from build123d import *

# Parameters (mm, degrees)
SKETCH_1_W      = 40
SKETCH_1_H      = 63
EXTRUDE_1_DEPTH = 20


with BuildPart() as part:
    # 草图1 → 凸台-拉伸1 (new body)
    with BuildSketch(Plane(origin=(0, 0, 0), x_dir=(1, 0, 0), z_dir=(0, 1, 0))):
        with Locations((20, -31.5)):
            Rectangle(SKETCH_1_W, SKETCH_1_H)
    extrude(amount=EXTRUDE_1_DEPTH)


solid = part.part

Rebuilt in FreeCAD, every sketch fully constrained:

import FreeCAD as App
import Part
import Sketcher

V = App.Vector
Q = App.Units.Quantity

doc = App.newDocument("Part")
body = doc.addObject("PartDesign::Body", "Body")

# Sketch on XZ plane
sketch1 = doc.addObject("Sketcher::SketchObject", "Sketch")
body.addObject(sketch1)
sketch1.AttachmentSupport = (doc.XZ_Plane, [""])
sketch1.MapMode = "FlatFace"
sketch1.addGeometry([
    Part.LineSegment(V(0, 0, 0), V(0, 63, 0)),
    Part.LineSegment(V(0, 63, 0), V(40, 63, 0)),
    Part.LineSegment(V(40, 63, 0), V(40, 0, 0)),
    Part.LineSegment(V(40, 0, 0), V(0, 0, 0)),
], False)
sketch1.addConstraint([
    Sketcher.Constraint("Coincident", 0, 2, 1, 1),
    Sketcher.Constraint("Coincident", 1, 2, 2, 1),
    Sketcher.Constraint("Coincident", 2, 2, 3, 1),
    Sketcher.Constraint("Coincident", 3, 2, 0, 1),
    Sketcher.Constraint("Vertical", 0),
    Sketcher.Constraint("Horizontal", 1),
    Sketcher.Constraint("Vertical", 2),
    Sketcher.Constraint("Horizontal", 3),
    Sketcher.Constraint("Coincident", 3, 2, -1, 1),
    Sketcher.Constraint("DistanceX", 1, 1, 1, 2, Q("40 mm")),
    Sketcher.Constraint("DistanceY", 0, 1, 0, 2, Q("63 mm")),
])
pad1 = doc.addObject("PartDesign::Pad", "Pad")
body.addObject(pad1)
pad1.Profile = sketch1
pad1.Length = 20
pad1.Reversed = True

doc.recompute()
